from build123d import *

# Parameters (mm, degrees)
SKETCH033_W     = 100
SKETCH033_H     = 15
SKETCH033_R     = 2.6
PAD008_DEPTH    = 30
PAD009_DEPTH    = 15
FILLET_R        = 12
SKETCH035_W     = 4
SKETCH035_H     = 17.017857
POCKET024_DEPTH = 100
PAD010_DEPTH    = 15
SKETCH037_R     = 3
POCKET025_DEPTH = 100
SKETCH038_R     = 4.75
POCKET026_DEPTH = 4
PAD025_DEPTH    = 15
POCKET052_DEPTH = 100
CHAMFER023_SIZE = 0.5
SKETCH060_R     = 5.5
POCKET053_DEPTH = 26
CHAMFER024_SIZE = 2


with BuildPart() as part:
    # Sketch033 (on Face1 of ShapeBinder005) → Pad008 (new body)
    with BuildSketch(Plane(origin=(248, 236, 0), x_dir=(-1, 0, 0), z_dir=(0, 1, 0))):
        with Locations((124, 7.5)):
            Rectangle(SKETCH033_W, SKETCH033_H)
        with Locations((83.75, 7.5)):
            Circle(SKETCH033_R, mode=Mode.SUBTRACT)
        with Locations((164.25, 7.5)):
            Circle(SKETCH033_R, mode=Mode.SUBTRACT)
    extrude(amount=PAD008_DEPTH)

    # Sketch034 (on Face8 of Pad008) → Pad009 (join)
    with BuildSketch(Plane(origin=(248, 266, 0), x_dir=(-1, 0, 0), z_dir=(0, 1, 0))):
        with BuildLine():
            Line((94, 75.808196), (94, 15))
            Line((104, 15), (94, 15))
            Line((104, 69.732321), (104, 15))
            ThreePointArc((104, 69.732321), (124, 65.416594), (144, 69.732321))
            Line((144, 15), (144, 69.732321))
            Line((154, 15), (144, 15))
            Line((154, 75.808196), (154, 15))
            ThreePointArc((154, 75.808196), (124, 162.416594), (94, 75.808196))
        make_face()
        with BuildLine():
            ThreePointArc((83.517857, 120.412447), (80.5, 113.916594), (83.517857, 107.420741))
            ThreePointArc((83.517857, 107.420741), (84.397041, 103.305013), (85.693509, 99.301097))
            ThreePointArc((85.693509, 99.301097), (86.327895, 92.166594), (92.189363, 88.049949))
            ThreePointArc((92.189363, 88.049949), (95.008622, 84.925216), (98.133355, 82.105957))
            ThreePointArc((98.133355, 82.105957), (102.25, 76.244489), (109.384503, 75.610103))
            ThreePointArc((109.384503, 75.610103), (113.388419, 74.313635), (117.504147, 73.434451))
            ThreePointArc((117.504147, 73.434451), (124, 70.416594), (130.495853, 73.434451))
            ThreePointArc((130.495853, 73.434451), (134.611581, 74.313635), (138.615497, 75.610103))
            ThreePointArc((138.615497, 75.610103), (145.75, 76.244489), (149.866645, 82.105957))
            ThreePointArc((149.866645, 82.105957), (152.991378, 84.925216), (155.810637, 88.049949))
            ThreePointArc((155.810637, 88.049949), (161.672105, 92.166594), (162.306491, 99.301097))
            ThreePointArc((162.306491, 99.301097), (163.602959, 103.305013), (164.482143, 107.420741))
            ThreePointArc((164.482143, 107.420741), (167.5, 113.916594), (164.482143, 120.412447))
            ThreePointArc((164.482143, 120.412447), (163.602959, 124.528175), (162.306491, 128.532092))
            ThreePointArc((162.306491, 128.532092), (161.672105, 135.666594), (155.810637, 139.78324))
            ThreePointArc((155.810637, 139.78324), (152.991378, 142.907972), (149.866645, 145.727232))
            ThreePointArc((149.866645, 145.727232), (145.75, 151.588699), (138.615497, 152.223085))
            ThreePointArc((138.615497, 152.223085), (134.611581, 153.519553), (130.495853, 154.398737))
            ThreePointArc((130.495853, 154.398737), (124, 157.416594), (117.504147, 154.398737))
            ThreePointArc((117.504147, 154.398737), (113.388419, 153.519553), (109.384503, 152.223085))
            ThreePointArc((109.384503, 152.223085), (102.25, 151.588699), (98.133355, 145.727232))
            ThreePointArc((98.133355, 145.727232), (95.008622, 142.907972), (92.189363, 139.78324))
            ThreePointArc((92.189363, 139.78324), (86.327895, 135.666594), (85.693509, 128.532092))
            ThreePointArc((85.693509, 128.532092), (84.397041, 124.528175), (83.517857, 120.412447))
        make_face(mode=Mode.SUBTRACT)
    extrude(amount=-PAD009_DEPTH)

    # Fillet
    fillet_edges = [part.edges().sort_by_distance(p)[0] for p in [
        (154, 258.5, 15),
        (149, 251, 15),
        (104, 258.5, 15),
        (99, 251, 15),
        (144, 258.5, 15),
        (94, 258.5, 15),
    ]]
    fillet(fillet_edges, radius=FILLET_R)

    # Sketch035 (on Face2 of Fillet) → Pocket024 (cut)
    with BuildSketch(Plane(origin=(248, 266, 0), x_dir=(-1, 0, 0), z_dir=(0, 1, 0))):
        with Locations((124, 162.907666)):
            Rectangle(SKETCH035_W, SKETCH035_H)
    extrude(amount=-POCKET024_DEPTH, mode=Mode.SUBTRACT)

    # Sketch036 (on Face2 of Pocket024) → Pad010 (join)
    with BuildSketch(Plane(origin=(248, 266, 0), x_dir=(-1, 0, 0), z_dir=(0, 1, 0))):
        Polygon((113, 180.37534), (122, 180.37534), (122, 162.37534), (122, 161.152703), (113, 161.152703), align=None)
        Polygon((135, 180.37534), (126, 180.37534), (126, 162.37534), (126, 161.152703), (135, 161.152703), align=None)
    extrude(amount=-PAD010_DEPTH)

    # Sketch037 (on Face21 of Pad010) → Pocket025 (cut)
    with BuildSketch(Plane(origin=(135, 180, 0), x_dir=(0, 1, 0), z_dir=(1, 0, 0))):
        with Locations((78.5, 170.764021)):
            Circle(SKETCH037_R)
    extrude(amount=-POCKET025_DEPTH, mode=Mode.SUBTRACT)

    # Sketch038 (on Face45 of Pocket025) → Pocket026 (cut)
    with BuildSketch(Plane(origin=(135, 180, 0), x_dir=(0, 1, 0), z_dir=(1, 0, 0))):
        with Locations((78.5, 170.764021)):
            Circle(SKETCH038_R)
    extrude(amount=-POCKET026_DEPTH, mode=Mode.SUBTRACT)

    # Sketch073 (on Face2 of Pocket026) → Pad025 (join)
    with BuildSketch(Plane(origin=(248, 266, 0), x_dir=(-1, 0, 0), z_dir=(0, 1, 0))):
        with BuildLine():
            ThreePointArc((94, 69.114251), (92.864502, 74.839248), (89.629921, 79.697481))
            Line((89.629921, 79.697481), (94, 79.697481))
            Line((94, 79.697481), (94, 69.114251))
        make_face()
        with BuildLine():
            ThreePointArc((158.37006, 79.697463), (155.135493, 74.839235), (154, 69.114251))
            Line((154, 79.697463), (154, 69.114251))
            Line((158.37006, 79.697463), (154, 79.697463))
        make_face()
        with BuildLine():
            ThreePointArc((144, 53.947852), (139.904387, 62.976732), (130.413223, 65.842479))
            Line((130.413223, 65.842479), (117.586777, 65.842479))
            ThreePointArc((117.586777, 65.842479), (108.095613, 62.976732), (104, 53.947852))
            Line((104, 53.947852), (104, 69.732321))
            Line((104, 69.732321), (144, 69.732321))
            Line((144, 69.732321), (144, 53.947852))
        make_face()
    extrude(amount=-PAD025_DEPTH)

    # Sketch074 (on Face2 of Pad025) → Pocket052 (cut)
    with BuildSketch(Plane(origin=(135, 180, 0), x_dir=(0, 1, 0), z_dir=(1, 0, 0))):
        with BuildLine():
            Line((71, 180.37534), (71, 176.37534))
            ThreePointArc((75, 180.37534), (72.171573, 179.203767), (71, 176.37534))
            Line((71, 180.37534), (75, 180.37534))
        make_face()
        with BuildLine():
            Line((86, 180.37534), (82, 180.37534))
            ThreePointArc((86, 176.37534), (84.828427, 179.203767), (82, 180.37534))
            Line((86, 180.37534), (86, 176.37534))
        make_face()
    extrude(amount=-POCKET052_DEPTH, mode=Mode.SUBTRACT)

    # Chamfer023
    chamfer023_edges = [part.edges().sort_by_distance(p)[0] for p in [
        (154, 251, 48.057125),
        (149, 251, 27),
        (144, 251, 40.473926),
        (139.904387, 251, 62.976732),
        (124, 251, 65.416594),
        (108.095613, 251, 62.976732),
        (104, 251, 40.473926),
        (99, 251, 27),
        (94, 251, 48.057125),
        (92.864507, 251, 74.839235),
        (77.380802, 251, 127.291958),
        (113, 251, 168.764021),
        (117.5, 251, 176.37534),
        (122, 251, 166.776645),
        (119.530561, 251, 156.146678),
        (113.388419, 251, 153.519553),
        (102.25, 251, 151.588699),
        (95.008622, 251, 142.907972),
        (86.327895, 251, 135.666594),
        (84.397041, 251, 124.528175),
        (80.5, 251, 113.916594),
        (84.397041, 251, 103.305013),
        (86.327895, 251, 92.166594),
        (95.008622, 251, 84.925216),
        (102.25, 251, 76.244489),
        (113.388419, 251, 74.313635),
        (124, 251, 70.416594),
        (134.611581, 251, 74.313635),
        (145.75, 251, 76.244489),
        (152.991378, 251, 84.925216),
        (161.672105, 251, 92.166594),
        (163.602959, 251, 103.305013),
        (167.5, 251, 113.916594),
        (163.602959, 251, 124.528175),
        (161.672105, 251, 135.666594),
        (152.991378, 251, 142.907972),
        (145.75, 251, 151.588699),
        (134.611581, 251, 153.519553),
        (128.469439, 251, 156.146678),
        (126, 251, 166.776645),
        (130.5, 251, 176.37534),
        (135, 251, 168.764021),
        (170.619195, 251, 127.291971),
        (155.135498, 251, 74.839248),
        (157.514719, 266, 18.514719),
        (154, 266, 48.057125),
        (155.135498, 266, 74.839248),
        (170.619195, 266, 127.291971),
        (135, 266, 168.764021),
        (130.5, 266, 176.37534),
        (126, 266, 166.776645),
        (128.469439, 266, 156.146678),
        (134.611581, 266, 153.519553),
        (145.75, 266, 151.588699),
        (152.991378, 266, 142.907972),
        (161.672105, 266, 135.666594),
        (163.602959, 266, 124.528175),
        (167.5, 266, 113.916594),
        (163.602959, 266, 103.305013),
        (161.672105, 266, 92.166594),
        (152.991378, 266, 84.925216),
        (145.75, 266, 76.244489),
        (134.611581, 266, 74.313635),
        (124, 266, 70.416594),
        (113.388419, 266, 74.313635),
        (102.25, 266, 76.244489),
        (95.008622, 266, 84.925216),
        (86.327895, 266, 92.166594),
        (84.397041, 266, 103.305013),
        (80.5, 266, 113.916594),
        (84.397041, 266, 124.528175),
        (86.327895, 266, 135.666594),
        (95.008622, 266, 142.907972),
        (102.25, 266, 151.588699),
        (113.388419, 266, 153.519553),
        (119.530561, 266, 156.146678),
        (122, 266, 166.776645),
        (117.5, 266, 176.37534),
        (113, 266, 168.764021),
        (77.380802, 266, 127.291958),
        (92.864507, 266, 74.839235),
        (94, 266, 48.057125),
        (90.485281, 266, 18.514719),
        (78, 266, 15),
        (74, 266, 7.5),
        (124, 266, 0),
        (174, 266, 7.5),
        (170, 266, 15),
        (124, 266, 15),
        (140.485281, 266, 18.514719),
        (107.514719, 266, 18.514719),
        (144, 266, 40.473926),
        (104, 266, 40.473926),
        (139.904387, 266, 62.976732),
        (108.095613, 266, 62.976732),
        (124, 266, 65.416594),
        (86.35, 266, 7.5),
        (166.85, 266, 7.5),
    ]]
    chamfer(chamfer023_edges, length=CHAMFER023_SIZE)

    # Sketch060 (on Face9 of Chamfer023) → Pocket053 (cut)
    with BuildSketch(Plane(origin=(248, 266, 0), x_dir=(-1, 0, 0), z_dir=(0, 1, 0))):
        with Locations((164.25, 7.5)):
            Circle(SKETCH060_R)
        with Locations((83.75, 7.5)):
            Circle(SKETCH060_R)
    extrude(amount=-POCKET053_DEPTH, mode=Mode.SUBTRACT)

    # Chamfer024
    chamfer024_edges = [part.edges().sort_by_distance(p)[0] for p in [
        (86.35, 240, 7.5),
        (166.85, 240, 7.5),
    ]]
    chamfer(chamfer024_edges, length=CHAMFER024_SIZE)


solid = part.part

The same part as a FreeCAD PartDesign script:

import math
import FreeCAD as App
import Part
import Sketcher
from FreeCAD import Vector


def edges_at(feature, points):
    """Names of the edges that pass closest to the given points."""
    edges = feature.Shape.Edges
    near = lambda p: min(range(len(edges)), key=lambda i: edges[i].distToShape(Part.Vertex(*p))[0])
    return sorted({f"Edge{near(p) + 1}" for p in points})

doc = App.newDocument("Part")
body = doc.addObject("PartDesign::Body", "Body")

# Sketch on XZ plane
sketch1 = doc.addObject("Sketcher::SketchObject", "Sketch")
body.addObject(sketch1)
sketch1.AttachmentSupport = (doc.XZ_Plane, [""])
sketch1.MapMode = "FlatFace"
sketch1.AttachmentOffset = App.Placement(Vector(0, 0, -236), App.Rotation())
sketch1.addGeometry(Part.LineSegment(Vector(174, 15, 0), Vector(174, 0, 0)), False)
sketch1.addGeometry(Part.LineSegment(Vector(174, 0, 0), Vector(74, 0, 0)), False)
sketch1.addGeometry(Part.LineSegment(Vector(74, 0, 0), Vector(74, 15, 0)), False)
sketch1.addGeometry(Part.LineSegment(Vector(74, 15, 0), Vector(174, 15, 0)), False)
sketch1.addGeometry(Part.Circle(Vector(164.2, 7.5, 0), Vector(0, 0, 1), 2.6), False)
sketch1.addGeometry(Part.Circle(Vector(83.8, 7.5, 0), Vector(0, 0, 1), 2.6), False)
sketch1.addConstraint(Sketcher.Constraint("Coincident", 0, 2, 1, 1))
sketch1.addConstraint(Sketcher.Constraint("Coincident", 1, 2, 2, 1))
sketch1.addConstraint(Sketcher.Constraint("Coincident", 2, 2, 3, 1))
sketch1.addConstraint(Sketcher.Constraint("Coincident", 3, 2, 0, 1))
sketch1.addConstraint(Sketcher.Constraint("Vertical", 0))
sketch1.addConstraint(Sketcher.Constraint("Horizontal", 1))
sketch1.addConstraint(Sketcher.Constraint("Vertical", 2))
sketch1.addConstraint(Sketcher.Constraint("Horizontal", 3))
sketch1.addConstraint(Sketcher.Constraint("Equal", 4, 5))
sketch1.addConstraint(Sketcher.Constraint("PointOnObject", 0, 2, -1))
sketch1.addConstraint(Sketcher.Constraint("Horizontal", 4, 3, 5, 3))
sketch1.addConstraint(Sketcher.Constraint("Diameter", 4, 5.2))
sketch1.addConstraint(Sketcher.Constraint("DistanceX", 1, 2, 1, 1, 100.0))
sketch1.addConstraint(Sketcher.Constraint("DistanceY", 0, 2, 0, 1, 15.0))
sketch1.addConstraint(Sketcher.Constraint("DistanceX", -1, 1, 0, 2, 174.0))
sketch1.addConstraint(Sketcher.Constraint("DistanceY", -1, 1, 4, 3, 7.5))
sketch1.addConstraint(Sketcher.Constraint("DistanceX", 5, 3, 4, 3, 80.5))
sketch1.addConstraint(Sketcher.Constraint("DistanceX", -1, 1, 4, 3, 164.25))
pad1 = doc.addObject("PartDesign::Pad", "Pad")
body.addObject(pad1)
pad1.Profile = sketch1
pad1.Length = 30
pad1.Reversed = True

# Sketch on XZ plane
sketch2 = doc.addObject("Sketcher::SketchObject", "Sketch001")
body.addObject(sketch2)
sketch2.AttachmentSupport = (doc.XZ_Plane, [""])
sketch2.MapMode = "FlatFace"
sketch2.AttachmentOffset = App.Placement(Vector(0, 0, -266), App.Rotation())
sketch2.addGeometry(Part.LineSegment(Vector(154, 75.808196, 0), Vector(154, 15, 0)), False)
sketch2.addGeometry(Part.LineSegment(Vector(154, 15, 0), Vector(144, 15, 0)), False)
sketch2.addGeometry(Part.LineSegment(Vector(144, 15, 0), Vector(144, 69.732321, 0)), False)
sketch2.addGeometry(Part.ArcOfCircle(Part.Circle(Vector(124, 113.916592, 0), Vector(0, 0, 1), 48.499998), math.radians(-114.353874), math.radians(-65.646126)), False)
sketch2.addGeometry(Part.LineSegment(Vector(104, 69.732321, 0), Vector(104, 15, 0)), False)
sketch2.addGeometry(Part.LineSegment(Vector(104, 15, 0), Vector(94, 15, 0)), False)
sketch2.addGeometry(Part.LineSegment(Vector(94, 15, 0), Vector(94, 75.808196, 0)), False)
sketch2.addGeometry(Part.ArcOfCircle(Part.Circle(Vector(124, 113.916594, 0), Vector(0, 0, 1), 48.5), math.radians(-51.789186), math.radians(231.789186)), False)
sketch2.addGeometry(Part.ArcOfCircle(Part.Circle(Vector(159, 113.916594, 0), Vector(0, 0, 1), 8.5), math.radians(-49.837474), math.radians(49.837474)), False)
sketch2.addGeometry(Part.ArcOfCircle(Part.Circle(Vector(123.999981, 113.91659, 0), Vector(0, 0, 1), 41.00002), math.radians(9.116096), math.radians(20.8839)), False)
sketch2.addGeometry(Part.ArcOfCircle(Part.Circle(Vector(154.310888, 131.416594, 0), Vector(0, 0, 1), 8.500001), math.radians(-19.837467), math.radians(79.837472)), False)
sketch2.addGeometry(Part.ArcOfCircle(Part.Circle(Vector(123.999982, 113.916577, 0), Vector(0, 0, 1), 41.000025), math.radians(39.116099), math.radians(50.883901)), False)
sketch2.addGeometry(Part.ArcOfCircle(Part.Circle(Vector(141.499999, 144.227483, 0), Vector(0, 0, 1), 8.5), math.radians(10.162529), math.radians(109.837474)), False)
sketch2.addGeometry(Part.ArcOfCircle(Part.Circle(Vector(124.000004, 113.916608, 0), Vector(0, 0, 1), 40.999986), math.radians(69.116094), math.radians(80.883907)), False)
sketch2.addGeometry(Part.ArcOfCircle(Part.Circle(Vector(124, 148.916594, 0), Vector(0, 0, 1), 8.5), math.radians(40.162526), math.radians(139.837474)), False)
sketch2.addGeometry(Part.ArcOfCircle(Part.Circle(Vector(123.999996, 113.916608, 0), Vector(0, 0, 1), 40.999986), math.radians(99.116093), math.radians(110.883906)), False)
sketch2.addGeometry(Part.ArcOfCircle(Part.Circle(Vector(106.500001, 144.227483, 0), Vector(0, 0, 1), 8.5), math.radians(70.162526), math.radians(169.837471)), False)
sketch2.addGeometry(Part.ArcOfCircle(Part.Circle(Vector(124.000018, 113.916577, 0), Vector(0, 0, 1), 41.000025), math.radians(129.116099), math.radians(140.883901)), False)
sketch2.addGeometry(Part.ArcOfCircle(Part.Circle(Vector(93.689112, 131.416594, 0), Vector(0, 0, 1), 8.500001), math.radians(100.162528), math.radians(199.837467)), False)
sketch2.addGeometry(Part.ArcOfCircle(Part.Circle(Vector(124.000019, 113.91659, 0), Vector(0, 0, 1), 41.00002), math.radians(159.1161), math.radians(170.883904)), False)
sketch2.addGeometry(Part.ArcOfCircle(Part.Circle(Vector(89, 113.916594, 0), Vector(0, 0, 1), 8.5), math.radians(130.162526), math.radians(229.837474)), False)
sketch2.addGeometry(Part.ArcOfCircle(Part.Circle(Vector(123.999986, 113.91659, 0), Vector(0, 0, 1), 40.999986), math.radians(-170.883907), math.radians(-159.116094)), False)
sketch2.addGeometry(Part.ArcOfCircle(Part.Circle(Vector(93.689111, 96.416595, 0), Vector(0, 0, 1), 8.5), math.radians(160.162526), math.radians(259.83748)), False)
sketch2.addGeometry(Part.ArcOfCircle(Part.Circle(Vector(123.999923, 113.916517, 0), Vector(0, 0, 1), 40.999892), math.radians(-140.88392), math.radians(-129.11608)), False)
sketch2.addGeometry(Part.ArcOfCircle(Part.Circle(Vector(106.500001, 83.605705, 0), Vector(0, 0, 1), 8.5), math.radians(-169.83748), math.radians(-70.162526)), False)
sketch2.addGeometry(Part.ArcOfCircle(Part.Circle(Vector(123.999996, 113.91658, 0), Vector(0, 0, 1), 40.999986), math.radians(-110.883906), math.radians(-99.116093)), False)
sketch2.addGeometry(Part.ArcOfCircle(Part.Circle(Vector(124, 78.916594, 0), Vector(0, 0, 1), 8.5), math.radians(-139.837474), math.radians(-40.162526)), False)
sketch2.addGeometry(Part.ArcOfCircle(Part.Circle(Vector(124.000004, 113.91658, 0), Vector(0, 0, 1), 40.999986), math.radians(-80.883907), math.radians(-69.116094)), False)
sketch2.addGeometry(Part.ArcOfCircle(Part.Circle(Vector(141.499999, 83.605705, 0), Vector(0, 0, 1), 8.5), math.radians(-109.837474), math.radians(-10.16252)), False)
sketch2.addGeometry(Part.ArcOfCircle(Part.Circle(Vector(124.000077, 113.916517, 0), Vector(0, 0, 1), 40.999892), math.radians(-50.88392), math.radians(-39.11608)), False)
sketch2.addGeometry(Part.ArcOfCircle(Part.Circle(Vector(154.310889, 96.416595, 0), Vector(0, 0, 1), 8.5), math.radians(-79.83748), math.radians(19.837474)), False)
sketch2.addGeometry(Part.ArcOfCircle(Part.Circle(Vector(124.000014, 113.91659, 0), Vector(0, 0, 1), 40.999986), math.radians(-20.883906), math.radians(-9.116093)), False)
sketch2.addConstraint(Sketcher.Constraint("Coincident", 0, 2, 1, 1))
sketch2.addConstraint(Sketcher.Constraint("Coincident", 1, 2, 2, 1))
sketch2.addConstraint(Sketcher.Constraint("Coincident", 2, 2, 3, 2))
sketch2.addConstraint(Sketcher.Constraint("Coincident", 3, 1, 4, 1))
sketch2.addConstraint(Sketcher.Constraint("Coincident", 4, 2, 5, 1))
sketch2.addConstraint(Sketcher.Constraint("Coincident", 5, 2, 6, 1))
sketch2.addConstraint(Sketcher.Constraint("Coincident", 6, 2, 7, 2))
sketch2.addConstraint(Sketcher.Constraint("Coincident", 7, 1, 0, 1))
sketch2.addConstraint(Sketcher.Constraint("Coincident", 8, 2, 9, 1))
sketch2.addConstraint(Sketcher.Constraint("Coincident", 9, 2, 10, 1))
sketch2.addConstraint(Sketcher.Constraint("Coincident", 10, 2, 11, 1))
sketch2.addConstraint(Sketcher.Constraint("Coincident", 11, 2, 12, 1))
sketch2.addConstraint(Sketcher.Constraint("Coincident", 12, 2, 13, 1))
sketch2.addConstraint(Sketcher.Constraint("Coincident", 13, 2, 14, 1))
sketch2.addConstraint(Sketcher.Constraint("Coincident", 14, 2, 15, 1))
sketch2.addConstraint(Sketcher.Constraint("Coincident", 15, 2, 16, 1))
sketch2.addConstraint(Sketcher.Constraint("Coincident", 16, 2, 17, 1))
sketch2.addConstraint(Sketcher.Constraint("Coincident", 17, 2, 18, 1))
sketch2.addConstraint(Sketcher.Constraint("Coincident", 18, 2, 19, 1))
sketch2.addConstraint(Sketcher.Constraint("Coincident", 19, 2, 20, 1))
sketch2.addConstraint(Sketcher.Constraint("Coincident", 20, 2, 21, 1))
sketch2.addConstraint(Sketcher.Constraint("Coincident", 21, 2, 22, 1))
sketch2.addConstraint(Sketcher.Constraint("Coincident", 22, 2, 23, 1))
sketch2.addConstraint(Sketcher.Constraint("Coincident", 23, 2, 24, 1))
sketch2.addConstraint(Sketcher.Constraint("Coincident", 24, 2, 25, 1))
sketch2.addConstraint(Sketcher.Constraint("Coincident", 25, 2, 26, 1))
sketch2.addConstraint(Sketcher.Constraint("Coincident", 26, 2, 27, 1))
sketch2.addConstraint(Sketcher.Constraint("Coincident", 27, 2, 28, 1))
sketch2.addConstraint(Sketcher.Constraint("Coincident", 28, 2, 29, 1))
sketch2.addConstraint(Sketcher.Constraint("Coincident", 29, 2, 30, 1))
sketch2.addConstraint(Sketcher.Constraint("Coincident", 30, 2, 31, 1))
sketch2.addConstraint(Sketcher.Constraint("Coincident", 31, 2, 8, 1))
sketch2.addConstraint(Sketcher.Constraint("Vertical", 0))
sketch2.addConstraint(Sketcher.Constraint("Horizontal", 1))
sketch2.addConstraint(Sketcher.Constraint("Vertical", 2))
sketch2.addConstraint(Sketcher.Constraint("Vertical", 4))
sketch2.addConstraint(Sketcher.Constraint("Horizontal", 5))
sketch2.addConstraint(Sketcher.Constraint("Vertical", 6))
sketch2.addConstraint(Sketcher.Constraint("Coincident", 7, 3, 3, 3))
sketch2.addConstraint(Sketcher.Constraint("Coincident", 15, 3, 13, 3))
sketch2.addConstraint(Sketcher.Constraint("Coincident", 21, 3, 9, 3))
sketch2.addConstraint(Sketcher.Constraint("Coincident", 27, 3, 25, 3))
sketch2.addConstraint(Sketcher.Constraint("Coincident", 31, 3, 19, 3))
sketch2.addConstraint(Sketcher.Constraint("Radius", 7, 48.5))
sketch2.addConstraint(Sketcher.Constraint("Radius", 8, 8.5))
sketch2.addConstraint(Sketcher.Constraint("Radius", 10, 8.500001))
sketch2.addConstraint(Sketcher.Constraint("Radius", 12, 8.5))
sketch2.addConstraint(Sketcher.Constraint("Radius", 14, 8.5))
sketch2.addConstraint(Sketcher.Constraint("Radius", 16, 8.5))
sketch2.addConstraint(Sketcher.Constraint("Radius", 18, 8.500001))
sketch2.addConstraint(Sketcher.Constraint("Radius", 20, 8.5))
sketch2.addConstraint(Sketcher.Constraint("Radius", 22, 8.5))
sketch2.addConstraint(Sketcher.Constraint("Radius", 24, 8.5))
sketch2.addConstraint(Sketcher.Constraint("Radius", 26, 8.5))
sketch2.addConstraint(Sketcher.Constraint("Radius", 28, 8.5))
sketch2.addConstraint(Sketcher.Constraint("Radius", 30, 8.5))
sketch2.addConstraint(Sketcher.Constraint("DistanceX", 1, 2, 1, 1, 10.0))
sketch2.addConstraint(Sketcher.Constraint("DistanceX", 5, 2, 5, 1, 10.0))
sketch2.addConstraint(Sketcher.Constraint("DistanceX", -1, 1, 3, 3, 124.0))
sketch2.addConstraint(Sketcher.Constraint("DistanceX", -1, 1, 8, 3, 159.0))
sketch2.addConstraint(Sketcher.Constraint("DistanceX", -1, 1, 14, 3, 124.0))
sketch2.addConstraint(Sketcher.Constraint("DistanceX", -1, 1, 20, 3, 89.0))
sketch2.addConstraint(Sketcher.Constraint("DistanceX", -1, 1, 26, 3, 124.0))
sketch2.addConstraint(Sketcher.Constraint("DistanceX", -1, 1, 0, 2, 154.0))
sketch2.addConstraint(Sketcher.Constraint("DistanceY", -1, 1, 0, 2, 15.0))
sketch2.addConstraint(Sketcher.Constraint("DistanceX", -1, 1, 3, 1, 104.0))
sketch2.addConstraint(Sketcher.Constraint("DistanceY", -1, 1, 4, 2, 15.0))
sketch2.addConstraint(Sketcher.Constraint("DistanceY", 7, 3, 14, 3, 35.0))
sketch2.addConstraint(Sketcher.Constraint("DistanceX", 16, 3, 12, 3, 34.999999))
sketch2.addConstraint(Sketcher.Constraint("DistanceX", -1, 1, 12, 3, 141.499999))
sketch2.addConstraint(Sketcher.Constraint("DistanceX", -1, 1, 24, 3, 106.500001))
sketch2.addConstraint(Sketcher.Constraint("DistanceX", -1, 1, 28, 3, 141.499999))
sketch2.addConstraint(Sketcher.Constraint("DistanceY", 8, 3, 10, 3, 17.5))
sketch2.addConstraint(Sketcher.Constraint("DistanceY", 7, 3, 10, 3, 17.5))
sketch2.addConstraint(Sketcher.Constraint("DistanceY", 20, 3, 18, 3, 17.5))
sketch2.addConstraint(Sketcher.Constraint("DistanceY", 22, 3, 20, 3, 17.499999))
sketch2.addConstraint(Sketcher.Constraint("DistanceY", 30, 3, 8, 3, 17.499999))
sketch2.addConstraint(Sketcher.Constraint("Radius", 9, 41.00002))
sketch2.addConstraint(Sketcher.Constraint("Radius", 19, 41.00002))
sketch2.addConstraint(Sketcher.Constraint("Radius", 23, 40.999892))
sketch2.addConstraint(Sketcher.Constraint("Radius", 29, 40.999892))
sketch2.addConstraint(Sketcher.Constraint("Radius", 3, 48.499998))
sketch2.addConstraint(Sketcher.Constraint("Radius", 11, 41.000025))
sketch2.addConstraint(Sketcher.Constraint("Radius", 13, 40.999986))
sketch2.addConstraint(Sketcher.Constraint("Radius", 15, 40.999986))
sketch2.addConstraint(Sketcher.Constraint("Radius", 17, 41.000025))
sketch2.addConstraint(Sketcher.Constraint("Radius", 21, 40.999986))
sketch2.addConstraint(Sketcher.Constraint("Radius", 25, 40.999986))
sketch2.addConstraint(Sketcher.Constraint("Radius", 27, 40.999986))
sketch2.addConstraint(Sketcher.Constraint("Radius", 31, 40.999986))
sketch2.addConstraint(Sketcher.Constraint("DistanceY", 2, 1, 2, 2, 54.732321))
sketch2.addConstraint(Sketcher.Constraint("DistanceY", 6, 2, 22, 3, 20.608399))
sketch2.addConstraint(Sketcher.Constraint("DistanceY", 9, 2, 10, 3, 2.884502))
sketch2.addConstraint(Sketcher.Constraint("DistanceX", 30, 3, 9, 2, 7.995602))
sketch2.addConstraint(Sketcher.Constraint("DistanceY", 12, 3, 12, 2, 7.995602))
sketch2.addConstraint(Sketcher.Constraint("DistanceY", 16, 3, 15, 2, 7.995602))
sketch2.addConstraint(Sketcher.Constraint("DistanceY", 18, 2, 18, 3, 2.884502))
sketch2.addConstraint(Sketcher.Constraint("DistanceX", 21, 2, 22, 3, 7.995602))
sketch2.addConstraint(Sketcher.Constraint("DistanceY", 24, 2, 24, 3, 7.995602))
sketch2.addConstraint(Sketcher.Constraint("DistanceY", 27, 2, 28, 3, 7.995602))
sketch2.addConstraint(Sketcher.Constraint("DistanceX", 30, 3, 30, 2, 7.995602))
sketch2.addConstraint(Sketcher.Constraint("DistanceX", -1, 1, 9, 3, 123.999981))
sketch2.addConstraint(Sketcher.Constraint("DistanceY", -1, 1, 9, 3, 113.91659))
sketch2.addConstraint(Sketcher.Constraint("DistanceX", -1, 1, 11, 3, 123.999982))
sketch2.addConstraint(Sketcher.Constraint("DistanceX", -1, 1, 17, 3, 124.000018))
sketch2.addConstraint(Sketcher.Constraint("DistanceX", -1, 1, 19, 3, 124.000019))
sketch2.addConstraint(Sketcher.Constraint("DistanceY", -1, 1, 25, 3, 113.91658))
sketch2.addConstraint(Sketcher.Constraint("DistanceY", -1, 1, 10, 2, 139.78324))
sketch2.addConstraint(Sketcher.Constraint("DistanceY", -1, 1, 17, 2, 139.78324))
sketch2.addConstraint(Sketcher.Constraint("DistanceY", -1, 1, 22, 2, 88.049949))
sketch2.addConstraint(Sketcher.Constraint("DistanceY", -1, 1, 25, 2, 73.434451))
sketch2.addConstraint(Sketcher.Constraint("DistanceY", -1, 1, 26, 2, 73.434451))
sketch2.addConstraint(Sketcher.Constraint("DistanceY", -1, 1, 29, 2, 88.049949))
sketch2.addConstraint(Sketcher.Constraint("DistanceY", 10, 3, 12, 3, 12.810889))
sketch2.addConstraint(Sketcher.Constraint("DistanceY", 16, 3, 14, 3, 4.689111))
sketch2.addConstraint(Sketcher.Constraint("DistanceY", 29, 3, 8, 2, 6.49593))
sketch2.addConstraint(Sketcher.Constraint("DistanceY", 6, 2, 23, 2, 6.297761))
pad2 = doc.addObject("PartDesign::Pad", "Pad001")
body.addObject(pad2)
pad2.Profile = sketch2
pad2.Length = 15
doc.recompute()

fillet = doc.addObject("PartDesign::Fillet", "Fillet")
body.addObject(fillet)
fillet.Base = (pad2, edges_at(pad2, [
    (154, 258.5, 15),
    (149, 251, 15),
    (104, 258.5, 15),
    (99, 251, 15),
    (144, 258.5, 15),
    (94, 258.5, 15),
]))
fillet.Radius = 12

# Sketch on XZ plane
sketch3 = doc.addObject("Sketcher::SketchObject", "Sketch002")
body.addObject(sketch3)
sketch3.AttachmentSupport = (doc.XZ_Plane, [""])
sketch3.MapMode = "FlatFace"
sketch3.AttachmentOffset = App.Placement(Vector(0, 0, -266), App.Rotation())
sketch3.addGeometry(Part.LineSegment(Vector(126, 171.4, 0), Vector(126, 154.4, 0)), False)
sketch3.addGeometry(Part.LineSegment(Vector(126, 154.4, 0), Vector(122, 154.4, 0)), False)
sketch3.addGeometry(Part.LineSegment(Vector(122, 154.4, 0), Vector(122, 171.4, 0)), False)
sketch3.addGeometry(Part.LineSegment(Vector(122, 171.4, 0), Vector(126, 171.4, 0)), False)
sketch3.addConstraint(Sketcher.Constraint("Coincident", 0, 2, 1, 1))
sketch3.addConstraint(Sketcher.Constraint("Coincident", 1, 2, 2, 1))
sketch3.addConstraint(Sketcher.Constraint("Coincident", 2, 2, 3, 1))
sketch3.addConstraint(Sketcher.Constraint("Coincident", 3, 2, 0, 1))
sketch3.addConstraint(Sketcher.Constraint("Vertical", 0))
sketch3.addConstraint(Sketcher.Constraint("Horizontal", 1))
sketch3.addConstraint(Sketcher.Constraint("Vertical", 2))
sketch3.addConstraint(Sketcher.Constraint("Horizontal", 3))
sketch3.addConstraint(Sketcher.Constraint("DistanceX", 1, 2, 1, 1, 4.0))
sketch3.addConstraint(Sketcher.Constraint("DistanceX", -1, 1, 0, 2, 126.0))
sketch3.addConstraint(Sketcher.Constraint("DistanceY", 0, 2, 0, 1, 17.017857))
sketch3.addConstraint(Sketcher.Constraint("DistanceY", -1, 1, 0, 2, 154.398738))
pocket1 = doc.addObject("PartDesign::Pocket", "Pocket")
body.addObject(pocket1)
pocket1.Profile = sketch3
pocket1.Length = 100
pocket1.Reversed = True

# Sketch on XZ plane
sketch4 = doc.addObject("Sketcher::SketchObject", "Sketch003")
body.addObject(sketch4)
sketch4.AttachmentSupport = (doc.XZ_Plane, [""])
sketch4.MapMode = "FlatFace"
sketch4.AttachmentOffset = App.Placement(Vector(0, 0, -266), App.Rotation())
sketch4.addGeometry(Part.LineSegment(Vector(126, 180, 0), Vector(135, 180, 0)), False)
sketch4.addGeometry(Part.LineSegment(Vector(135, 180, 0), Vector(135, 161, 0)), False)
sketch4.addGeometry(Part.LineSegment(Vector(135, 161, 0), Vector(126, 161, 0)), False)
sketch4.addGeometry(Part.LineSegment(Vector(126, 161, 0), Vector(126, 180, 0)), False)
sketch4.addGeometry(Part.LineSegment(Vector(113, 180, 0), Vector(122, 180, 0)), False)
sketch4.addGeometry(Part.LineSegment(Vector(122, 180, 0), Vector(122, 161, 0)), False)
sketch4.addGeometry(Part.LineSegment(Vector(122, 161, 0), Vector(113, 161, 0)), False)
sketch4.addGeometry(Part.LineSegment(Vector(113, 161, 0), Vector(113, 180, 0)), False)
sketch4.addConstraint(Sketcher.Constraint("Coincident", 0, 2, 1, 1))
sketch4.addConstraint(Sketcher.Constraint("Coincident", 1, 2, 2, 1))
sketch4.addConstraint(Sketcher.Constraint("Coincident", 2, 2, 3, 1))
sketch4.addConstraint(Sketcher.Constraint("Coincident", 3, 2, 0, 1))
sketch4.addConstraint(Sketcher.Constraint("Coincident", 4, 2, 5, 1))
sketch4.addConstraint(Sketcher.Constraint("Coincident", 5, 2, 6, 1))
sketch4.addConstraint(Sketcher.Constraint("Coincident", 6, 2, 7, 1))
sketch4.addConstraint(Sketcher.Constraint("Coincident", 7, 2, 4, 1))
sketch4.addConstraint(Sketcher.Constraint("Horizontal", 0))
sketch4.addConstraint(Sketcher.Constraint("Vertical", 1))
sketch4.addConstraint(Sketcher.Constraint("Horizontal", 2))
sketch4.addConstraint(Sketcher.Constraint("Vertical", 3))
sketch4.addConstraint(Sketcher.Constraint("Horizontal", 4))
sketch4.addConstraint(Sketcher.Constraint("Vertical", 5))
sketch4.addConstraint(Sketcher.Constraint("Horizontal", 6))
sketch4.addConstraint(Sketcher.Constraint("Vertical", 7))
sketch4.addConstraint(Sketcher.Constraint("Horizontal", 3, 2, 4, 2))
sketch4.addConstraint(Sketcher.Constraint("Horizontal", 2, 2, 5, 2))
sketch4.addConstraint(Sketcher.Constraint("Equal", 2, 4))
sketch4.addConstraint(Sketcher.Constraint("DistanceX", 0, 1, 0, 2, 9.0))
sketch4.addConstraint(Sketcher.Constraint("DistanceX", -1, 1, 0, 2, 135.0))
sketch4.addConstraint(Sketcher.Constraint("DistanceX", -1, 1, 4, 2, 122.0))
sketch4.addConstraint(Sketcher.Constraint("DistanceY", 1, 2, 1, 1, 19.222637))
sketch4.addConstraint(Sketcher.Constraint("DistanceY", -1, 1, 0, 2, 180.37534))
pad3 = doc.addObject("PartDesign::Pad", "Pad002")
body.addObject(pad3)
pad3.Profile = sketch4
pad3.Length = 15

# Sketch on YZ plane
sketch5 = doc.addObject("Sketcher::SketchObject", "Sketch004")
body.addObject(sketch5)
sketch5.AttachmentSupport = (doc.YZ_Plane, [""])
sketch5.MapMode = "FlatFace"
sketch5.AttachmentOffset = App.Placement(Vector(0, 0, 135), App.Rotation())
sketch5.addGeometry(Part.Circle(Vector(258.5, 170.8, 0), Vector(0, 0, 1), 3), False)
sketch5.addConstraint(Sketcher.Constraint("Diameter", 0, 6.0))
sketch5.addConstraint(Sketcher.Constraint("DistanceX", -1, 1, 0, 3, 258.5))
sketch5.addConstraint(Sketcher.Constraint("DistanceY", -1, 1, 0, 3, 170.764021))
pocket2 = doc.addObject("PartDesign::Pocket", "Pocket001")
body.addObject(pocket2)
pocket2.Profile = sketch5
pocket2.Length = 100

# Sketch on YZ plane
sketch6 = doc.addObject("Sketcher::SketchObject", "Sketch005")
body.addObject(sketch6)
sketch6.AttachmentSupport = (doc.YZ_Plane, [""])
sketch6.MapMode = "FlatFace"
sketch6.AttachmentOffset = App.Placement(Vector(0, 0, 135), App.Rotation())
sketch6.addGeometry(Part.Circle(Vector(258.5, 170.8, 0), Vector(0, 0, 1), 4.8), False)
sketch6.addConstraint(Sketcher.Constraint("Diameter", 0, 9.5))
sketch6.addConstraint(Sketcher.Constraint("DistanceX", -1, 1, 0, 3, 258.5))
sketch6.addConstraint(Sketcher.Constraint("DistanceY", -1, 1, 0, 3, 170.764021))
pocket3 = doc.addObject("PartDesign::Pocket", "Pocket002")
body.addObject(pocket3)
pocket3.Profile = sketch6
pocket3.Length = 4

# Sketch on XZ plane
sketch7 = doc.addObject("Sketcher::SketchObject", "Sketch006")
body.addObject(sketch7)
sketch7.AttachmentSupport = (doc.XZ_Plane, [""])
sketch7.MapMode = "FlatFace"
sketch7.AttachmentOffset = App.Placement(Vector(0, 0, -266), App.Rotation())
sketch7.addGeometry(Part.ArcOfCircle(Part.Circle(Vector(169, 69.1, 0), Vector(0, 0, 1), 15), math.radians(135), math.radians(180)), False)
sketch7.addGeometry(Part.LineSegment(Vector(154, 69.1, 0), Vector(154, 79.7, 0)), False)
sketch7.addGeometry(Part.LineSegment(Vector(154, 79.7, 0), Vector(158.4, 79.7, 0)), False)
sketch7.addGeometry(Part.ArcOfCircle(Part.Circle(Vector(79, 69.1, 0), Vector(0, 0, 1), 15), math.radians(0), math.radians(45)), False)
sketch7.addGeometry(Part.LineSegment(Vector(89.6, 79.7, 0), Vector(94, 79.7, 0)), False)
sketch7.addGeometry(Part.LineSegment(Vector(94, 79.7, 0), Vector(94, 69.1, 0)), False)
sketch7.addGeometry(Part.ArcOfCircle(Part.Circle(Vector(116, 53.9, 0), Vector(0, 0, 1), 12), math.radians(82), math.radians(180)), False)
sketch7.addGeometry(Part.LineSegment(Vector(104, 53.9, 0), Vector(104, 69.7, 0)), False)
sketch7.addGeometry(Part.LineSegment(Vector(104, 69.7, 0), Vector(144, 69.7, 0)), False)
sketch7.addGeometry(Part.LineSegment(Vector(144, 69.7, 0), Vector(144, 53.9, 0)), False)
sketch7.addGeometry(Part.ArcOfCircle(Part.Circle(Vector(132, 53.9, 0), Vector(0, 0, 1), 12), math.radians(0), math.radians(98)), False)
sketch7.addGeometry(Part.LineSegment(Vector(130.4, 65.8, 0), Vector(117.6, 65.8, 0)), False)
sketch7.addConstraint(Sketcher.Constraint("Tangent", 0, 2, 1, 1))
sketch7.addConstraint(Sketcher.Constraint("Coincident", 1, 2, 2, 1))
sketch7.addConstraint(Sketcher.Constraint("Coincident", 2, 2, 0, 1))
sketch7.addConstraint(Sketcher.Constraint("Coincident", 3, 2, 4, 1))
sketch7.addConstraint(Sketcher.Constraint("Coincident", 4, 2, 5, 1))
sketch7.addConstraint(Sketcher.Constraint("Tangent", 5, 2, 3, 1))
sketch7.addConstraint(Sketcher.Constraint("Tangent", 6, 2, 7, 1))
sketch7.addConstraint(Sketcher.Constraint("Coincident", 7, 2, 8, 1))
sketch7.addConstraint(Sketcher.Constraint("Coincident", 8, 2, 9, 1))
sketch7.addConstraint(Sketcher.Constraint("Tangent", 9, 2, 10, 1))
sketch7.addConstraint(Sketcher.Constraint("Coincident", 10, 2, 11, 1))
sketch7.addConstraint(Sketcher.Constraint("Coincident", 11, 2, 6, 1))
sketch7.addConstraint(Sketcher.Constraint("Vertical", 1))
sketch7.addConstraint(Sketcher.Constraint("Horizontal", 2))
sketch7.addConstraint(Sketcher.Constraint("Horizontal", 4))
sketch7.addConstraint(Sketcher.Constraint("Vertical", 5))
sketch7.addConstraint(Sketcher.Constraint("Vertical", 7))
sketch7.addConstraint(Sketcher.Constraint("Horizontal", 8))
sketch7.addConstraint(Sketcher.Constraint("Vertical", 9))
sketch7.addConstraint(Sketcher.Constraint("Horizontal", 11))
sketch7.addConstraint(Sketcher.Constraint("Equal", 6, 10))
sketch7.addConstraint(Sketcher.Constraint("Horizontal", 6, 3, 10, 3))
sketch7.addConstraint(Sketcher.Constraint("Horizontal", 3, 3, 0, 2))
sketch7.addConstraint(Sketcher.Constraint("Radius", 3, 15.000002))
sketch7.addConstraint(Sketcher.Constraint("Radius", 6, 12.0))
sketch7.addConstraint(Sketcher.Constraint("DistanceX", 8, 1, 8, 2, 40.0))
sketch7.addConstraint(Sketcher.Constraint("DistanceX", -1, 1, 3, 3, 78.999998))
sketch7.addConstraint(Sketcher.Constraint("DistanceX", -1, 1, 6, 3, 116.0))
sketch7.addConstraint(Sketcher.Constraint("DistanceX", -1, 1, 0, 2, 154.0))
sketch7.addConstraint(Sketcher.Constraint("Radius", 0, 14.999993))
sketch7.addConstraint(Sketcher.Constraint("DistanceX", 2, 1, 2, 2, 4.370079))
sketch7.addConstraint(Sketcher.Constraint("DistanceX", 4, 1, 4, 2, 4.37006))
sketch7.addConstraint(Sketcher.Constraint("DistanceY", 7, 1, 7, 2, 15.784469))
sketch7.addConstraint(Sketcher.Constraint("DistanceY", 6, 3, 0, 3, 15.166401))
sketch7.addConstraint(Sketcher.Constraint("DistanceX", 11, 2, 11, 1, 12.826446))
sketch7.addConstraint(Sketcher.Constraint("DistanceY", -1, 1, 3, 3, 69.11425))
pad4 = doc.addObject("PartDesign::Pad", "Pad003")
body.addObject(pad4)
pad4.Profile = sketch7
pad4.Length = 15

# Sketch on YZ plane
sketch8 = doc.addObject("Sketcher::SketchObject", "Sketch007")
body.addObject(sketch8)
sketch8.AttachmentSupport = (doc.YZ_Plane, [""])
sketch8.MapMode = "FlatFace"
sketch8.AttachmentOffset = App.Placement(Vector(0, 0, 135), App.Rotation())
sketch8.addGeometry(Part.LineSegment(Vector(251, 180.4, 0), Vector(251, 176.4, 0)), False)
sketch8.addGeometry(Part.ArcOfCircle(Part.Circle(Vector(255, 176.4, 0), Vector(0, 0, 1), 4), math.radians(90), math.radians(180)), False)
sketch8.addGeometry(Part.LineSegment(Vector(255, 180.4, 0), Vector(251, 180.4, 0)), False)
sketch8.addGeometry(Part.LineSegment(Vector(266, 180.4, 0), Vector(262, 180.4, 0)), False)
sketch8.addGeometry(Part.ArcOfCircle(Part.Circle(Vector(262, 176.4, 0), Vector(0, 0, 1), 4), math.radians(0), math.radians(90)), False)
sketch8.addGeometry(Part.LineSegment(Vector(266, 176.4, 0), Vector(266, 180.4, 0)), False)
sketch8.addConstraint(Sketcher.Constraint("Tangent", 0, 2, 1, 2))
sketch8.addConstraint(Sketcher.Constraint("Tangent", 1, 1, 2, 1))
sketch8.addConstraint(Sketcher.Constraint("Coincident", 2, 2, 0, 1))
sketch8.addConstraint(Sketcher.Constraint("Tangent", 3, 2, 4, 2))
sketch8.addConstraint(Sketcher.Constraint("Tangent", 4, 1, 5, 1))
sketch8.addConstraint(Sketcher.Constraint("Coincident", 5, 2, 3, 1))
sketch8.addConstraint(Sketcher.Constraint("Vertical", 0))
sketch8.addConstraint(Sketcher.Constraint("Horizontal", 2))
sketch8.addConstraint(Sketcher.Constraint("Horizontal", 3))
sketch8.addConstraint(Sketcher.Constraint("Vertical", 5))
sketch8.addConstraint(Sketcher.Constraint("Equal", 1, 4))
sketch8.addConstraint(Sketcher.Constraint("Horizontal", 1, 3, 4, 3))
sketch8.addConstraint(Sketcher.Constraint("Radius", 1, 4.0))
sketch8.addConstraint(Sketcher.Constraint("DistanceX", -1, 1, 1, 3, 255.0))
sketch8.addConstraint(Sketcher.Constraint("DistanceX", -1, 1, 4, 3, 262.0))
sketch8.addConstraint(Sketcher.Constraint("DistanceY", -1, 1, 1, 3, 176.37534))
pocket4 = doc.addObject("PartDesign::Pocket", "Pocket003")
body.addObject(pocket4)
pocket4.Profile = sketch8
pocket4.Length = 100
doc.recompute()

chamfer = doc.addObject("PartDesign::Chamfer", "Chamfer")
body.addObject(chamfer)
chamfer.Base = (pocket4, edges_at(pocket4, [
    (154, 251, 48.057),
    (149, 251, 27),
    (144, 251, 40.474),
    (139.905, 251, 62.976),
    (124, 251, 65.417),
    (108.095, 251, 62.976),
    (104, 251, 40.474),
    (99, 251, 27),
    (94, 251, 48.057),
    (92.865, 251, 74.838),
    (77.38, 251, 127.29),
    (113, 251, 168.764),
    (117.5, 251, 176.375),
    (122, 251, 166.777),
    (119.531, 251, 156.147),
    (113.388, 251, 153.52),
    (102.25, 251, 151.589),
    (95.009, 251, 142.908),
    (86.328, 251, 135.667),
    (84.397, 251, 124.528),
    (80.5, 251, 113.917),
    (84.397, 251, 103.305),
    (86.328, 251, 92.167),
    (95.009, 251, 84.925),
    (102.25, 251, 76.244),
    (113.388, 251, 74.314),
    (124, 251, 70.417),
    (134.612, 251, 74.314),
    (145.75, 251, 76.244),
    (152.991, 251, 84.925),
    (161.672, 251, 92.167),
    (163.603, 251, 103.305),
    (167.5, 251, 113.917),
    (163.603, 251, 124.528),
    (161.672, 251, 135.667),
    (152.991, 251, 142.908),
    (145.75, 251, 151.589),
    (134.612, 251, 153.52),
    (128.469, 251, 156.147),
    (126, 251, 166.777),
    (130.5, 251, 176.375),
    (135, 251, 168.764),
    (170.619, 251, 127.292),
    (155.135, 251, 74.839),
    (157.515, 266, 18.515),
    (154, 266, 48.057),
    (155.135, 266, 74.839),
    (170.619, 266, 127.292),
    (135, 266, 168.764),
    (130.5, 266, 176.375),
    (126, 266, 166.777),
    (128.469, 266, 156.147),
    (134.612, 266, 153.52),
    (145.75, 266, 151.589),
    (152.991, 266, 142.908),
    (161.672, 266, 135.667),
    (163.603, 266, 124.528),
    (167.5, 266, 113.917),
    (163.603, 266, 103.305),
    (161.672, 266, 92.167),
    (152.991, 266, 84.925),
    (145.75, 266, 76.244),
    (134.612, 266, 74.314),
    (124, 266, 70.417),
    (113.388, 266, 74.314),
    (102.25, 266, 76.244),
    (95.009, 266, 84.925),
    (86.328, 266, 92.167),
    (84.397, 266, 103.305),
    (80.5, 266, 113.917),
    (84.397, 266, 124.528),
    (86.328, 266, 135.667),
    (95.009, 266, 142.908),
    (102.25, 266, 151.589),
    (113.388, 266, 153.52),
    (119.531, 266, 156.147),
    (122, 266, 166.777),
    (117.5, 266, 176.375),
    (113, 266, 168.764),
    (77.38, 266, 127.29),
    (92.865, 266, 74.838),
    (94, 266, 48.057),
    (90.485, 266, 18.515),
    (78, 266, 15),
    (74, 266, 7.5),
    (124, 266, 0),
    (174, 266, 7.5),
    (170, 266, 15),
    (124, 266, 15),
    (140.485, 266, 18.515),
    (107.515, 266, 18.515),
    (144, 266, 40.474),
    (104, 266, 40.474),
    (139.905, 266, 62.976),
    (108.095, 266, 62.976),
    (124, 266, 65.417),
    (86.35, 266, 7.5),
    (166.85, 266, 7.5),
]))
chamfer.Size = 0.5

# Sketch on XZ plane
sketch9 = doc.addObject("Sketcher::SketchObject", "Sketch008")
body.addObject(sketch9)
sketch9.AttachmentSupport = (doc.XZ_Plane, [""])
sketch9.MapMode = "FlatFace"
sketch9.AttachmentOffset = App.Placement(Vector(0, 0, -266), App.Rotation())
sketch9.addGeometry(Part.Circle(Vector(84, 8, 0), Vector(0, 0, 1), 6), False)
sketch9.addGeometry(Part.Circle(Vector(164, 8, 0), Vector(0, 0, 1), 6), False)
sketch9.addConstraint(Sketcher.Constraint("Equal", 0, 1))
sketch9.addConstraint(Sketcher.Constraint("Horizontal", 0, 3, 1, 3))
sketch9.addConstraint(Sketcher.Constraint("Diameter", 0, 11.0))
sketch9.addConstraint(Sketcher.Constraint("DistanceY", -1, 1, 0, 3, 7.5))
sketch9.addConstraint(Sketcher.Constraint("DistanceX", 0, 3, 1, 3, 80.5))
sketch9.addConstraint(Sketcher.Constraint("DistanceX", -1, 1, 0, 3, 83.75))
pocket5 = doc.addObject("PartDesign::Pocket", "Pocket004")
body.addObject(pocket5)
pocket5.Profile = sketch9
pocket5.Length = 26
pocket5.Reversed = True
doc.recompute()

chamfer2 = doc.addObject("PartDesign::Chamfer", "Chamfer001")
body.addObject(chamfer2)
chamfer2.Base = (pocket5, edges_at(pocket5, [(86.35, 240, 7.5), (166.85, 240, 7.5)]))
chamfer2.Size = 2

doc.recompute()
